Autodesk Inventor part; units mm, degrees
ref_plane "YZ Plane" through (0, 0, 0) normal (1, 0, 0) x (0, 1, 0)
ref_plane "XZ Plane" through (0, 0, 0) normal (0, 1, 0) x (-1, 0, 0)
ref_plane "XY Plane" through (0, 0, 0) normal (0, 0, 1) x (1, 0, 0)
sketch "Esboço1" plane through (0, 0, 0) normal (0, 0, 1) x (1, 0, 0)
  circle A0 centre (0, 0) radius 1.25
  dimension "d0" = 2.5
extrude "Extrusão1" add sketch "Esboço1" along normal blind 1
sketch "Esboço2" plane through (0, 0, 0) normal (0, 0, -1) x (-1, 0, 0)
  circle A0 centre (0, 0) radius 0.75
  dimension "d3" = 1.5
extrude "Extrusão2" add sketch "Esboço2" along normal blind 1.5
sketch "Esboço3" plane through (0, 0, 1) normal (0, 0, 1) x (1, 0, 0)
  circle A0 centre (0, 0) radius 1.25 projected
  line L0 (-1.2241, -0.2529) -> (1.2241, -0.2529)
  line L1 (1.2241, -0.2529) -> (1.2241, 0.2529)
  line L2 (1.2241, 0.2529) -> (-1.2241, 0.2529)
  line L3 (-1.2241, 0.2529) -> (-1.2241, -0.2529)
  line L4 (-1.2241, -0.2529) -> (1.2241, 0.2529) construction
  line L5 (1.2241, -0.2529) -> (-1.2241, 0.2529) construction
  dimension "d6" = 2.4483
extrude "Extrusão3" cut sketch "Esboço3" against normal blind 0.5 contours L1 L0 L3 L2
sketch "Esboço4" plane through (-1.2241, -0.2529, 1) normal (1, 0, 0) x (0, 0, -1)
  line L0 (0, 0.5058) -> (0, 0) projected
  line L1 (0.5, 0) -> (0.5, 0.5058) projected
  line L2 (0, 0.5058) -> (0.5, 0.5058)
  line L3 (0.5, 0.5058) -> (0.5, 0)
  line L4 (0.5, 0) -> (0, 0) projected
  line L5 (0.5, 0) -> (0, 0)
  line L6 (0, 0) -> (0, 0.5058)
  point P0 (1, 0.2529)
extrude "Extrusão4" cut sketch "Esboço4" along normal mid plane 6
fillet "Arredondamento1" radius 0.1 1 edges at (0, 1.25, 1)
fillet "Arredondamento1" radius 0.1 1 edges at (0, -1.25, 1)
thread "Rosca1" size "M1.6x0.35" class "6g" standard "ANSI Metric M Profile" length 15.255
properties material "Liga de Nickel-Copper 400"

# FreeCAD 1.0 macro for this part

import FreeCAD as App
import Part
import Sketcher


def edges_at(feature, points):
    """Names of the edges that pass closest to the given points."""
    edges = feature.Shape.Edges
    near = lambda p: min(range(len(edges)), key=lambda i: edges[i].distToShape(Part.Vertex(*p))[0])
    return sorted({f"Edge{near(p) + 1}" for p in points})


def add_polygon(sketch, points):
    """Adds a closed chain of lines whose ends are joined by coincident constraints."""
    first, n = sketch.GeometryCount, len(points)
    for a, b in zip(points, points[1:] + points[:1]):
        sketch.addGeometry(Part.LineSegment(App.Vector(*a, 0), App.Vector(*b, 0)), False)
    for i in range(n):
        sketch.addConstraint(Sketcher.Constraint("Coincident", first + i, 2, first + (i + 1) % n, 1))

doc = App.newDocument("Part")
body = doc.addObject("PartDesign::Body", "Body")

sketch1 = body.newObject("Sketcher::SketchObject", "Sketch")
sketch1.AttachmentSupport = (doc.getObject("XY_Plane"), [""])
sketch1.MapMode = "FlatFace"
sketch1.addGeometry(Part.Circle(App.Vector(0, 0, 0), App.Vector(0, 0, 1), 1.2), False)
sketch1.addConstraint([
    Sketcher.Constraint("Coincident", 0, 3, -1, 1),
    Sketcher.Constraint("Diameter", 0, 2.5),
])
pad1 = body.newObject("PartDesign::Pad", "Pad")
pad1.Profile = sketch1
pad1.Length = 1

sketch2 = body.newObject("Sketcher::SketchObject", "Sketch001")
sketch2.AttachmentSupport = (doc.getObject("XY_Plane"), [""])
sketch2.MapMode = "FlatFace"
sketch2.addGeometry(Part.Circle(App.Vector(0, 0, 0), App.Vector(0, 0, 1), 0.8), False)
sketch2.addConstraint([
    Sketcher.Constraint("Coincident", 0, 3, -1, 1),
    Sketcher.Constraint("Diameter", 0, 1.5),
])
pad2 = body.newObject("PartDesign::Pad", "Pad001")
pad2.Profile = sketch2
pad2.Length = 1.5
pad2.Reversed = True

sketch3 = body.newObject("Sketcher::SketchObject", "Sketch002")
sketch3.AttachmentSupport = (doc.getObject("XY_Plane"), [""])
sketch3.MapMode = "FlatFace"
sketch3.AttachmentOffset = App.Placement(App.Vector(0, 0, 1), App.Rotation())
add_polygon(sketch3, [(1.2, -0.3), (1.2, 0.3), (-1.2, 0.3), (-1.2, -0.3)])
sketch3.addConstraint([
    Sketcher.Constraint("Vertical", 0),
    Sketcher.Constraint("Horizontal", 1),
    Sketcher.Constraint("Vertical", 2),
    Sketcher.Constraint("Horizontal", 3),
    Sketcher.Constraint("Symmetric", 0, 2, 2, 2, -1, 1),
    Sketcher.Constraint("DistanceX", 1, 2, 1, 1, 2.4482),
    Sketcher.Constraint("DistanceY", 0, 1, 0, 2, 0.5058),
])
pocket1 = body.newObject("PartDesign::Pocket", "Pocket")
pocket1.Profile = sketch3
pocket1.Length = 0.5

sketch4 = body.newObject("Sketcher::SketchObject", "Sketch003")
sketch4.AttachmentSupport = (doc.getObject("YZ_Plane"), [""])
sketch4.MapMode = "FlatFace"
sketch4.AttachmentOffset = App.Placement(App.Vector(0, 0, -1.2241), App.Rotation())
add_polygon(sketch4, [(0.3, 0.5), (0.3, 1), (-0.3, 1), (-0.3, 0.5)])
sketch4.addConstraint([
    Sketcher.Constraint("Vertical", 0),
    Sketcher.Constraint("Horizontal", 1),
    Sketcher.Constraint("Vertical", 2),
    Sketcher.Constraint("Horizontal", 3),
    Sketcher.Constraint("DistanceY", 0, 1, 0, 2, 0.5),
    Sketcher.Constraint("DistanceY", -1, 1, 0, 2, 1.0),
    Sketcher.Constraint("DistanceX", 1, 2, 1, 1, 0.5058),
    Sketcher.Constraint("DistanceX", -1, 1, 0, 2, 0.253),
])
pocket2 = body.newObject("PartDesign::Pocket", "Pocket001")
pocket2.Profile = sketch4
pocket2.Length = 6
pocket2.Midplane = True
doc.recompute()

fillet = body.newObject("PartDesign::Fillet", "Fillet")
fillet.Base = (pocket2, edges_at(pocket2, [(0, 1.25, 1)]))
fillet.Radius = 0.1
doc.recompute()

fillet2 = body.newObject("PartDesign::Fillet", "Fillet001")
fillet2.Base = (fillet, edges_at(fillet, [(0, -1.25, 1)]))
fillet2.Radius = 0.1

doc.recompute()
